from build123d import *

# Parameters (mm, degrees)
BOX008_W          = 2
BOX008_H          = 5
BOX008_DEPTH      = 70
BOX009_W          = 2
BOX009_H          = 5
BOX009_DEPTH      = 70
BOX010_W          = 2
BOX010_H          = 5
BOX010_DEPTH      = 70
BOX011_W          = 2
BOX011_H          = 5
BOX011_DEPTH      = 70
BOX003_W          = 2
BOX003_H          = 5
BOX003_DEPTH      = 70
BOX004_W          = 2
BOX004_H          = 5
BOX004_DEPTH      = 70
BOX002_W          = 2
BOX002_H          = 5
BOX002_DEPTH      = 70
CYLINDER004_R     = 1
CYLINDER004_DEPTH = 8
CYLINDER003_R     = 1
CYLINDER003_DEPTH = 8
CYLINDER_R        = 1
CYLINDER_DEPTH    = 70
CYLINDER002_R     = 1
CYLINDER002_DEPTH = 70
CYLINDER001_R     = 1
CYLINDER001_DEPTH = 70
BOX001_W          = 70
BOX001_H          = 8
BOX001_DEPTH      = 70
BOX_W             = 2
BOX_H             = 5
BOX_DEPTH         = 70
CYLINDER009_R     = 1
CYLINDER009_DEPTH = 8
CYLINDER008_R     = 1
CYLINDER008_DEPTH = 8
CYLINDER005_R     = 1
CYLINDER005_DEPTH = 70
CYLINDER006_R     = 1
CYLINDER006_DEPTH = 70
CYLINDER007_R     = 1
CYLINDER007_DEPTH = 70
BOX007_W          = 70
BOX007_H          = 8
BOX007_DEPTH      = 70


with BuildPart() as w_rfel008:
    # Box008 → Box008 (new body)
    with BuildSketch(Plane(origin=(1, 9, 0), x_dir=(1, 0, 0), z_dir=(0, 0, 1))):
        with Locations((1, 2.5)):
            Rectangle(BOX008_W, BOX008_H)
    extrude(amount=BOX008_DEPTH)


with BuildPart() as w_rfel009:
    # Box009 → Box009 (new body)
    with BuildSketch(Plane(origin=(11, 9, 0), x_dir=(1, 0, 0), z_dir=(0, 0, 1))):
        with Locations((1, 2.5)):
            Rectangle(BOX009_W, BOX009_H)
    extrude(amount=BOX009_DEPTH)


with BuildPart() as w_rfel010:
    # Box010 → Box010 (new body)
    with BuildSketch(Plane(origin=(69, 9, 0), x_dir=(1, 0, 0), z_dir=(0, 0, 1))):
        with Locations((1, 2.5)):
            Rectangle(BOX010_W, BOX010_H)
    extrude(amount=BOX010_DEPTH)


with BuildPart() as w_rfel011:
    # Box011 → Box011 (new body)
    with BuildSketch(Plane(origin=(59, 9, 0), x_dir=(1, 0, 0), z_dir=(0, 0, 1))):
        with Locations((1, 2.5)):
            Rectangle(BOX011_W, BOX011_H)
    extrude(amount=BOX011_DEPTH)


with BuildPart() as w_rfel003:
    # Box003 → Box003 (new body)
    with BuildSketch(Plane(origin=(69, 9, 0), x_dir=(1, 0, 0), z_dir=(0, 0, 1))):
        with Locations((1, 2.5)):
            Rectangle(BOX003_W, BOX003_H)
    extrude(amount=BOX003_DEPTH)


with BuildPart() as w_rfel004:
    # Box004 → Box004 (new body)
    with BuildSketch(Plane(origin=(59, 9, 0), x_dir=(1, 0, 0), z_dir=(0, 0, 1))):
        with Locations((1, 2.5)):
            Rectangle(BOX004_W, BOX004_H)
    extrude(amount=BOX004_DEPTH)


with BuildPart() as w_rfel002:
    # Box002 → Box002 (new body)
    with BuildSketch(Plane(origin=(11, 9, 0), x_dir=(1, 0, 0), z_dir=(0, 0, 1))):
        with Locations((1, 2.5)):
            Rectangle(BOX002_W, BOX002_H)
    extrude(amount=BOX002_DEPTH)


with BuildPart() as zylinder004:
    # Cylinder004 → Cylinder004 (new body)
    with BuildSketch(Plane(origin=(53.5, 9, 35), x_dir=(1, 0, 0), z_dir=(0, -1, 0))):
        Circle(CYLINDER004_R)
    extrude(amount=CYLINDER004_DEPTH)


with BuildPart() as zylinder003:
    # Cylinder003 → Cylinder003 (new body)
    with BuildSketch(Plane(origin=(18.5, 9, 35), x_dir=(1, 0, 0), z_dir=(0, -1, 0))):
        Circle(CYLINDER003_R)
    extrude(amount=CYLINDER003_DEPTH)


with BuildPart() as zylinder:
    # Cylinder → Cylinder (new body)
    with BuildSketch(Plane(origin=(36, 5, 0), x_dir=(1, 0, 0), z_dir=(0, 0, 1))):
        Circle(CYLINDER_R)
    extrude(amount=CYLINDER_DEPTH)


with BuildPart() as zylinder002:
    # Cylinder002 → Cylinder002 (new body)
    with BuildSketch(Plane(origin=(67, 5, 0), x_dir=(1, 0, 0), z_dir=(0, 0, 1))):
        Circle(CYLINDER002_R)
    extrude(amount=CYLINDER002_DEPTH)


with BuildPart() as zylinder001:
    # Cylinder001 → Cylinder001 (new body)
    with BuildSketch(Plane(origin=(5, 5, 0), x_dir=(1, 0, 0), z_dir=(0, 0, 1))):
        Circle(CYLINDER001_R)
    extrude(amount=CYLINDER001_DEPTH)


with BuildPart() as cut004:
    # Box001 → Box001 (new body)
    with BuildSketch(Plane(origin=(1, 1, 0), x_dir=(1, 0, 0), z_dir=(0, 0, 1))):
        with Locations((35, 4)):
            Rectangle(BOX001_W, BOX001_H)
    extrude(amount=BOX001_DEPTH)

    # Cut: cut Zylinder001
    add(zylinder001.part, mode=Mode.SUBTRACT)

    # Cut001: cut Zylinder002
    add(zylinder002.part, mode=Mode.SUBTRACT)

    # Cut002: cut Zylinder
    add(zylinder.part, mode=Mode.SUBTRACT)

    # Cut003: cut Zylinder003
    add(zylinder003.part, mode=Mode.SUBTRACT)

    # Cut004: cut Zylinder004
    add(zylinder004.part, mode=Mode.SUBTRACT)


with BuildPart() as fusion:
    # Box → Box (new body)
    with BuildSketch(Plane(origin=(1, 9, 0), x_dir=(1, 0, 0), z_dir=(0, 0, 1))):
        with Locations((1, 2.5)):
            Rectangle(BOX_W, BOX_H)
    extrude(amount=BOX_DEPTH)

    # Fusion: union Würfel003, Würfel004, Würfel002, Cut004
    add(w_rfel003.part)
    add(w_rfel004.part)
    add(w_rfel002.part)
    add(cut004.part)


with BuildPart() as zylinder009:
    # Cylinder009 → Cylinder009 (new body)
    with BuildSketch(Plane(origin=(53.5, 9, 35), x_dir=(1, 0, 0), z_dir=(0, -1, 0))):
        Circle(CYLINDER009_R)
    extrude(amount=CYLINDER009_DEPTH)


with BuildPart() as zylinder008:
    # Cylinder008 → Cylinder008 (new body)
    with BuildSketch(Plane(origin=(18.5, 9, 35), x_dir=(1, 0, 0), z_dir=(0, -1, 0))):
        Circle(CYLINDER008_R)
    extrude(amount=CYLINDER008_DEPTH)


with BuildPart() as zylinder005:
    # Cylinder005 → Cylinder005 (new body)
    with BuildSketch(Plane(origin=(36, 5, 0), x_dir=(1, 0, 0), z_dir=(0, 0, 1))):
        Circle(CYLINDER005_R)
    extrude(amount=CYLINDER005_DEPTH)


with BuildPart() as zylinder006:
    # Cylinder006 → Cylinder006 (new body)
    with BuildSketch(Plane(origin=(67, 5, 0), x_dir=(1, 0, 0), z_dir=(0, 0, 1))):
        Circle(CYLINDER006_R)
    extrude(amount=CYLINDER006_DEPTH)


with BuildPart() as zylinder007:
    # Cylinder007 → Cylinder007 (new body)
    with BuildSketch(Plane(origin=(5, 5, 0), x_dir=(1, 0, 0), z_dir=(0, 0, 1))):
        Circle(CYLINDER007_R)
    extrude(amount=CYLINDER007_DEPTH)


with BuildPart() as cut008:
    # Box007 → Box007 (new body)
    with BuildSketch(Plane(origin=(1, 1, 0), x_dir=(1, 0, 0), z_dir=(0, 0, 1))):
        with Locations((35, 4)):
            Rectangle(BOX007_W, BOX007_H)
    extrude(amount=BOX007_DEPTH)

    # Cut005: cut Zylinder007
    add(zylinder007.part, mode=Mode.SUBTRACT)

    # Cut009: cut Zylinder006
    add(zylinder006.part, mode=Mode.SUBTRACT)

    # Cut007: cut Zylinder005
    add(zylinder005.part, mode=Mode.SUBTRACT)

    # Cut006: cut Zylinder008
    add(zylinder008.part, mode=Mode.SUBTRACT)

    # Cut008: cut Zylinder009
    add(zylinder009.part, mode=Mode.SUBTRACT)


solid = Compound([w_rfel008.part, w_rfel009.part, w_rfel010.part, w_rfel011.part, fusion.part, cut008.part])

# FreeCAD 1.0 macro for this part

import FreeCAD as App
import Part
import Sketcher

V = App.Vector


def add_polygon(sketch, points):
    """Adds a closed chain of lines whose ends are joined by coincident constraints."""
    first, n = sketch.GeometryCount, len(points)
    for a, b in zip(points, points[1:] + points[:1]):
        sketch.addGeometry(Part.LineSegment(App.Vector(*a, 0), App.Vector(*b, 0)), False)
    for i in range(n):
        sketch.addConstraint(Sketcher.Constraint("Coincident", first + i, 2, first + (i + 1) % n, 1))

doc = App.newDocument("Part")
body = doc.addObject("PartDesign::Body", "Body")

sketch1 = doc.addObject("Sketcher::SketchObject", "Sketch")
body.addObject(sketch1)
sketch1.AttachmentSupport = (doc.XY_Plane, [""])
sketch1.MapMode = "FlatFace"
add_polygon(sketch1, [(1, 14), (1, 9), (3, 9), (3, 14)])
sketch1.addConstraint(Sketcher.Constraint("Vertical", 0))
sketch1.addConstraint(Sketcher.Constraint("Horizontal", 1))
sketch1.addConstraint(Sketcher.Constraint("Vertical", 2))
sketch1.addConstraint(Sketcher.Constraint("Horizontal", 3))
sketch1.addConstraint(Sketcher.Constraint("DistanceX", 1, 1, 1, 2, 2.0))
sketch1.addConstraint(Sketcher.Constraint("DistanceY", 0, 2, 0, 1, 5.0))
sketch1.addConstraint(Sketcher.Constraint("DistanceX", -1, 1, 0, 2, 1.0))
sketch1.addConstraint(Sketcher.Constraint("DistanceY", -1, 1, 0, 2, 9.0))
pad1 = doc.addObject("PartDesign::Pad", "Pad")
body.addObject(pad1)
pad1.Profile = sketch1
pad1.Length = 70
body2 = doc.addObject("PartDesign::Body", "Body001")

sketch2 = doc.addObject("Sketcher::SketchObject", "Sketch001")
body2.addObject(sketch2)
sketch2.AttachmentSupport = (doc.getObject("XY_Plane001"), [""])
sketch2.MapMode = "FlatFace"
add_polygon(sketch2, [(11, 14), (11, 9), (13, 9), (13, 14)])
sketch2.addConstraint(Sketcher.Constraint("Vertical", 0))
sketch2.addConstraint(Sketcher.Constraint("Horizontal", 1))
sketch2.addConstraint(Sketcher.Constraint("Vertical", 2))
sketch2.addConstraint(Sketcher.Constraint("Horizontal", 3))
sketch2.addConstraint(Sketcher.Constraint("DistanceX", 1, 1, 1, 2, 2.0))
sketch2.addConstraint(Sketcher.Constraint("DistanceY", 0, 2, 0, 1, 5.0))
sketch2.addConstraint(Sketcher.Constraint("DistanceX", -1, 1, 0, 2, 11.0))
sketch2.addConstraint(Sketcher.Constraint("DistanceY", -1, 1, 0, 2, 9.0))
pad2 = doc.addObject("PartDesign::Pad", "Pad001")
body2.addObject(pad2)
pad2.Profile = sketch2
pad2.Length = 70
body3 = doc.addObject("PartDesign::Body", "Body002")

sketch3 = doc.addObject("Sketcher::SketchObject", "Sketch002")
body3.addObject(sketch3)
sketch3.AttachmentSupport = (doc.getObject("XY_Plane002"), [""])
sketch3.MapMode = "FlatFace"
add_polygon(sketch3, [(69, 14), (69, 9), (71, 9), (71, 14)])
sketch3.addConstraint(Sketcher.Constraint("Vertical", 0))
sketch3.addConstraint(Sketcher.Constraint("Horizontal", 1))
sketch3.addConstraint(Sketcher.Constraint("Vertical", 2))
sketch3.addConstraint(Sketcher.Constraint("Horizontal", 3))
sketch3.addConstraint(Sketcher.Constraint("DistanceX", 1, 1, 1, 2, 2.0))
sketch3.addConstraint(Sketcher.Constraint("DistanceY", 0, 2, 0, 1, 5.0))
sketch3.addConstraint(Sketcher.Constraint("DistanceX", -1, 1, 0, 2, 69.0))
sketch3.addConstraint(Sketcher.Constraint("DistanceY", -1, 1, 0, 2, 9.0))
pad3 = doc.addObject("PartDesign::Pad", "Pad002")
body3.addObject(pad3)
pad3.Profile = sketch3
pad3.Length = 70
body4 = doc.addObject("PartDesign::Body", "Body003")

sketch4 = doc.addObject("Sketcher::SketchObject", "Sketch003")
body4.addObject(sketch4)
sketch4.AttachmentSupport = (doc.getObject("XY_Plane003"), [""])
sketch4.MapMode = "FlatFace"
add_polygon(sketch4, [(59, 14), (59, 9), (61, 9), (61, 14)])
sketch4.addConstraint(Sketcher.Constraint("Vertical", 0))
sketch4.addConstraint(Sketcher.Constraint("Horizontal", 1))
sketch4.addConstraint(Sketcher.Constraint("Vertical", 2))
sketch4.addConstraint(Sketcher.Constraint("Horizontal", 3))
sketch4.addConstraint(Sketcher.Constraint("DistanceX", 1, 1, 1, 2, 2.0))
sketch4.addConstraint(Sketcher.Constraint("DistanceY", 0, 2, 0, 1, 5.0))
sketch4.addConstraint(Sketcher.Constraint("DistanceX", -1, 1, 0, 2, 59.0))
sketch4.addConstraint(Sketcher.Constraint("DistanceY", -1, 1, 0, 2, 9.0))
pad4 = doc.addObject("PartDesign::Pad", "Pad003")
body4.addObject(pad4)
pad4.Profile = sketch4
pad4.Length = 70
body5 = doc.addObject("PartDesign::Body", "Body004")

sketch5 = doc.addObject("Sketcher::SketchObject", "Sketch004")
body5.addObject(sketch5)
sketch5.AttachmentSupport = (doc.getObject("XY_Plane004"), [""])
sketch5.MapMode = "FlatFace"
add_polygon(sketch5, [(69, 14), (69, 9), (71, 9), (71, 14)])
sketch5.addConstraint(Sketcher.Constraint("Vertical", 0))
sketch5.addConstraint(Sketcher.Constraint("Horizontal", 1))
sketch5.addConstraint(Sketcher.Constraint("Vertical", 2))
sketch5.addConstraint(Sketcher.Constraint("Horizontal", 3))
sketch5.addConstraint(Sketcher.Constraint("DistanceX", 1, 1, 1, 2, 2.0))
sketch5.addConstraint(Sketcher.Constraint("DistanceY", 0, 2, 0, 1, 5.0))
sketch5.addConstraint(Sketcher.Constraint("DistanceX", -1, 1, 0, 2, 69.0))
sketch5.addConstraint(Sketcher.Constraint("DistanceY", -1, 1, 0, 2, 9.0))
pad5 = doc.addObject("PartDesign::Pad", "Pad004")
body5.addObject(pad5)
pad5.Profile = sketch5
pad5.Length = 70
body6 = doc.addObject("PartDesign::Body", "Body005")

sketch6 = doc.addObject("Sketcher::SketchObject", "Sketch005")
body6.addObject(sketch6)
sketch6.AttachmentSupport = (doc.getObject("XY_Plane005"), [""])
sketch6.MapMode = "FlatFace"
add_polygon(sketch6, [(59, 14), (59, 9), (61, 9), (61, 14)])
sketch6.addConstraint(Sketcher.Constraint("Vertical", 0))
sketch6.addConstraint(Sketcher.Constraint("Horizontal", 1))
sketch6.addConstraint(Sketcher.Constraint("Vertical", 2))
sketch6.addConstraint(Sketcher.Constraint("Horizontal", 3))
sketch6.addConstraint(Sketcher.Constraint("DistanceX", 1, 1, 1, 2, 2.0))
sketch6.addConstraint(Sketcher.Constraint("DistanceY", 0, 2, 0, 1, 5.0))
sketch6.addConstraint(Sketcher.Constraint("DistanceX", -1, 1, 0, 2, 59.0))
sketch6.addConstraint(Sketcher.Constraint("DistanceY", -1, 1, 0, 2, 9.0))
pad6 = doc.addObject("PartDesign::Pad", "Pad005")
body6.addObject(pad6)
pad6.Profile = sketch6
pad6.Length = 70
body7 = doc.addObject("PartDesign::Body", "Body006")

sketch7 = doc.addObject("Sketcher::SketchObject", "Sketch006")
body7.addObject(sketch7)
sketch7.AttachmentSupport = (doc.getObject("XY_Plane006"), [""])
sketch7.MapMode = "FlatFace"
add_polygon(sketch7, [(11, 14), (11, 9), (13, 9), (13, 14)])
sketch7.addConstraint(Sketcher.Constraint("Vertical", 0))
sketch7.addConstraint(Sketcher.Constraint("Horizontal", 1))
sketch7.addConstraint(Sketcher.Constraint("Vertical", 2))
sketch7.addConstraint(Sketcher.Constraint("Horizontal", 3))
sketch7.addConstraint(Sketcher.Constraint("DistanceX", 1, 1, 1, 2, 2.0))
sketch7.addConstraint(Sketcher.Constraint("DistanceY", 0, 2, 0, 1, 5.0))
sketch7.addConstraint(Sketcher.Constraint("DistanceX", -1, 1, 0, 2, 11.0))
sketch7.addConstraint(Sketcher.Constraint("DistanceY", -1, 1, 0, 2, 9.0))
pad7 = doc.addObject("PartDesign::Pad", "Pad006")
body7.addObject(pad7)
pad7.Profile = sketch7
pad7.Length = 70
body8 = doc.addObject("PartDesign::Body", "Body007")

sketch8 = doc.addObject("Sketcher::SketchObject", "Sketch007")
body8.addObject(sketch8)
sketch8.AttachmentSupport = (doc.getObject("XZ_Plane007"), [""])
sketch8.MapMode = "FlatFace"
sketch8.AttachmentOffset = App.Placement(V(0, 0, -9), App.Rotation())
sketch8.addGeometry(Part.Circle(V(53.5, 35, 0), V(0, 0, 1), 1), False)
sketch8.addConstraint(Sketcher.Constraint("Diameter", 0, 2.0))
sketch8.addConstraint(Sketcher.Constraint("DistanceY", -1, 1, 0, 3, 35.0))
sketch8.addConstraint(Sketcher.Constraint("DistanceX", -1, 1, 0, 3, 53.5))
pad8 = doc.addObject("PartDesign::Pad", "Pad007")
body8.addObject(pad8)
pad8.Profile = sketch8
pad8.Length = 8
body9 = doc.addObject("PartDesign::Body", "Body008")

sketch9 = doc.addObject("Sketcher::SketchObject", "Sketch008")
body9.addObject(sketch9)
sketch9.AttachmentSupport = (doc.getObject("XZ_Plane008"), [""])
sketch9.MapMode = "FlatFace"
sketch9.AttachmentOffset = App.Placement(V(0, 0, -9), App.Rotation())
sketch9.addGeometry(Part.Circle(V(18.5, 35, 0), V(0, 0, 1), 1), False)
sketch9.addConstraint(Sketcher.Constraint("Diameter", 0, 2.0))
sketch9.addConstraint(Sketcher.Constraint("DistanceY", -1, 1, 0, 3, 35.0))
sketch9.addConstraint(Sketcher.Constraint("DistanceX", -1, 1, 0, 3, 18.5))
pad9 = doc.addObject("PartDesign::Pad", "Pad008")
body9.addObject(pad9)
pad9.Profile = sketch9
pad9.Length = 8
body10 = doc.addObject("PartDesign::Body", "Body009")

sketch10 = doc.addObject("Sketcher::SketchObject", "Sketch009")
body10.addObject(sketch10)
sketch10.AttachmentSupport = (doc.getObject("XY_Plane009"), [""])
sketch10.MapMode = "FlatFace"
sketch10.addGeometry(Part.Circle(V(36, 5, 0), V(0, 0, 1), 1), False)
sketch10.addConstraint(Sketcher.Constraint("Diameter", 0, 2.0))
sketch10.addConstraint(Sketcher.Constraint("DistanceX", -1, 1, 0, 3, 36.0))
sketch10.addConstraint(Sketcher.Constraint("DistanceY", -1, 1, 0, 3, 5.0))
pad10 = doc.addObject("PartDesign::Pad", "Pad009")
body10.addObject(pad10)
pad10.Profile = sketch10
pad10.Length = 70
body11 = doc.addObject("PartDesign::Body", "Body010")

sketch11 = doc.addObject("Sketcher::SketchObject", "Sketch010")
body11.addObject(sketch11)
sketch11.AttachmentSupport = (doc.getObject("XY_Plane010"), [""])
sketch11.MapMode = "FlatFace"
sketch11.addGeometry(Part.Circle(V(67, 5, 0), V(0, 0, 1), 1), False)
sketch11.addConstraint(Sketcher.Constraint("Diameter", 0, 2.0))
sketch11.addConstraint(Sketcher.Constraint("DistanceX", -1, 1, 0, 3, 67.0))
sketch11.addConstraint(Sketcher.Constraint("DistanceY", -1, 1, 0, 3, 5.0))
pad11 = doc.addObject("PartDesign::Pad", "Pad010")
body11.addObject(pad11)
pad11.Profile = sketch11
pad11.Length = 70
body12 = doc.addObject("PartDesign::Body", "Body011")

sketch12 = doc.addObject("Sketcher::SketchObject", "Sketch011")
body12.addObject(sketch12)
sketch12.AttachmentSupport = (doc.getObject("XY_Plane011"), [""])
sketch12.MapMode = "FlatFace"
sketch12.addGeometry(Part.Circle(V(5, 5, 0), V(0, 0, 1), 1), False)
sketch12.addConstraint(Sketcher.Constraint("Diameter", 0, 2.0))
sketch12.addConstraint(Sketcher.Constraint("DistanceX", -1, 1, 0, 3, 5.0))
sketch12.addConstraint(Sketcher.Constraint("DistanceY", -1, 1, 0, 3, 5.0))
pad12 = doc.addObject("PartDesign::Pad", "Pad011")
body12.addObject(pad12)
pad12.Profile = sketch12
pad12.Length = 70
body13 = doc.addObject("PartDesign::Body", "Body012")

sketch13 = doc.addObject("Sketcher::SketchObject", "Sketch012")
body13.addObject(sketch13)
sketch13.AttachmentSupport = (doc.getObject("XY_Plane012"), [""])
sketch13.MapMode = "FlatFace"
add_polygon(sketch13, [(1, 9), (1, 1), (71, 1), (71, 9)])
sketch13.addConstraint(Sketcher.Constraint("Vertical", 0))
sketch13.addConstraint(Sketcher.Constraint("Horizontal", 1))
sketch13.addConstraint(Sketcher.Constraint("Vertical", 2))
sketch13.addConstraint(Sketcher.Constraint("Horizontal", 3))
sketch13.addConstraint(Sketcher.Constraint("DistanceX", 1, 1, 1, 2, 70.0))
sketch13.addConstraint(Sketcher.Constraint("DistanceY", 0, 2, 0, 1, 8.0))
sketch13.addConstraint(Sketcher.Constraint("DistanceX", -1, 1, 0, 2, 1.0))
sketch13.addConstraint(Sketcher.Constraint("DistanceY", -1, 1, 0, 2, 1.0))
pad13 = doc.addObject("PartDesign::Pad", "Pad012")
body13.addObject(pad13)
pad13.Profile = sketch13
pad13.Length = 70
doc.recompute()

boolean = doc.addObject("PartDesign::Boolean", "Boolean")
body13.addObject(boolean)
boolean.Type = "Cut"
boolean.addObjects([body12])
doc.recompute()

boolean2 = doc.addObject("PartDesign::Boolean", "Boolean001")
body13.addObject(boolean2)
boolean2.Type = "Cut"
boolean2.addObjects([body11])
doc.recompute()

boolean3 = doc.addObject("PartDesign::Boolean", "Boolean002")
body13.addObject(boolean3)
boolean3.Type = "Cut"
boolean3.addObjects([body10])
doc.recompute()

boolean4 = doc.addObject("PartDesign::Boolean", "Boolean003")
body13.addObject(boolean4)
boolean4.Type = "Cut"
boolean4.addObjects([body9])
doc.recompute()

boolean5 = doc.addObject("PartDesign::Boolean", "Boolean004")
body13.addObject(boolean5)
boolean5.Type = "Cut"
boolean5.addObjects([body8])
body14 = doc.addObject("PartDesign::Body", "Body013")
body14.AllowCompound = True

sketch14 = doc.addObject("Sketcher::SketchObject", "Sketch013")
body14.addObject(sketch14)
sketch14.AttachmentSupport = (doc.getObject("XY_Plane013"), [""])
sketch14.MapMode = "FlatFace"
add_polygon(sketch14, [(1, 14), (1, 9), (3, 9), (3, 14)])
sketch14.addConstraint(Sketcher.Constraint("Vertical", 0))
sketch14.addConstraint(Sketcher.Constraint("Horizontal", 1))
sketch14.addConstraint(Sketcher.Constraint("Vertical", 2))
sketch14.addConstraint(Sketcher.Constraint("Horizontal", 3))
sketch14.addConstraint(Sketcher.Constraint("DistanceX", 1, 1, 1, 2, 2.0))
sketch14.addConstraint(Sketcher.Constraint("DistanceY", 0, 2, 0, 1, 5.0))
sketch14.addConstraint(Sketcher.Constraint("DistanceX", -1, 1, 0, 2, 1.0))
sketch14.addConstraint(Sketcher.Constraint("DistanceY", -1, 1, 0, 2, 9.0))
pad14 = doc.addObject("PartDesign::Pad", "Pad013")
body14.addObject(pad14)
pad14.Profile = sketch14
pad14.Length = 70
doc.recompute()

boolean6 = doc.addObject("PartDesign::Boolean", "Boolean005")
body14.addObject(boolean6)
boolean6.Type = "Fuse"
boolean6.addObjects([body5])
doc.recompute()

boolean7 = doc.addObject("PartDesign::Boolean", "Boolean006")
body14.addObject(boolean7)
boolean7.Type = "Fuse"
boolean7.addObjects([body6])
doc.recompute()

boolean8 = doc.addObject("PartDesign::Boolean", "Boolean007")
body14.addObject(boolean8)
boolean8.Type = "Fuse"
boolean8.addObjects([body7])
doc.recompute()

boolean9 = doc.addObject("PartDesign::Boolean", "Boolean008")
body14.addObject(boolean9)
boolean9.Type = "Fuse"
boolean9.addObjects([body13])
body15 = doc.addObject("PartDesign::Body", "Body014")

sketch15 = doc.addObject("Sketcher::SketchObject", "Sketch014")
body15.addObject(sketch15)
sketch15.AttachmentSupport = (doc.getObject("XZ_Plane014"), [""])
sketch15.MapMode = "FlatFace"
sketch15.AttachmentOffset = App.Placement(V(0, 0, -9), App.Rotation())
sketch15.addGeometry(Part.Circle(V(53.5, 35, 0), V(0, 0, 1), 1), False)
sketch15.addConstraint(Sketcher.Constraint("Diameter", 0, 2.0))
sketch15.addConstraint(Sketcher.Constraint("DistanceY", -1, 1, 0, 3, 35.0))
sketch15.addConstraint(Sketcher.Constraint("DistanceX", -1, 1, 0, 3, 53.5))
pad15 = doc.addObject("PartDesign::Pad", "Pad014")
body15.addObject(pad15)
pad15.Profile = sketch15
pad15.Length = 8
body16 = doc.addObject("PartDesign::Body", "Body015")

sketch16 = doc.addObject("Sketcher::SketchObject", "Sketch015")
body16.addObject(sketch16)
sketch16.AttachmentSupport = (doc.getObject("XZ_Plane015"), [""])
sketch16.MapMode = "FlatFace"
sketch16.AttachmentOffset = App.Placement(V(0, 0, -9), App.Rotation())
sketch16.addGeometry(Part.Circle(V(18.5, 35, 0), V(0, 0, 1), 1), False)
sketch16.addConstraint(Sketcher.Constraint("Diameter", 0, 2.0))
sketch16.addConstraint(Sketcher.Constraint("DistanceY", -1, 1, 0, 3, 35.0))
sketch16.addConstraint(Sketcher.Constraint("DistanceX", -1, 1, 0, 3, 18.5))
pad16 = doc.addObject("PartDesign::Pad", "Pad015")
body16.addObject(pad16)
pad16.Profile = sketch16
pad16.Length = 8
body17 = doc.addObject("PartDesign::Body", "Body016")

sketch17 = doc.addObject("Sketcher::SketchObject", "Sketch016")
body17.addObject(sketch17)
sketch17.AttachmentSupport = (doc.getObject("XY_Plane016"), [""])
sketch17.MapMode = "FlatFace"
sketch17.addGeometry(Part.Circle(V(36, 5, 0), V(0, 0, 1), 1), False)
sketch17.addConstraint(Sketcher.Constraint("Diameter", 0, 2.0))
sketch17.addConstraint(Sketcher.Constraint("DistanceX", -1, 1, 0, 3, 36.0))
sketch17.addConstraint(Sketcher.Constraint("DistanceY", -1, 1, 0, 3, 5.0))
pad17 = doc.addObject("PartDesign::Pad", "Pad016")
body17.addObject(pad17)
pad17.Profile = sketch17
pad17.Length = 70
body18 = doc.addObject("PartDesign::Body", "Body017")

sketch18 = doc.addObject("Sketcher::SketchObject", "Sketch017")
body18.addObject(sketch18)
sketch18.AttachmentSupport = (doc.getObject("XY_Plane017"), [""])
sketch18.MapMode = "FlatFace"
sketch18.addGeometry(Part.Circle(V(67, 5, 0), V(0, 0, 1), 1), False)
sketch18.addConstraint(Sketcher.Constraint("Diameter", 0, 2.0))
sketch18.addConstraint(Sketcher.Constraint("DistanceX", -1, 1, 0, 3, 67.0))
sketch18.addConstraint(Sketcher.Constraint("DistanceY", -1, 1, 0, 3, 5.0))
pad18 = doc.addObject("PartDesign::Pad", "Pad017")
body18.addObject(pad18)
pad18.Profile = sketch18
pad18.Length = 70
body19 = doc.addObject("PartDesign::Body", "Body018")

sketch19 = doc.addObject("Sketcher::SketchObject", "Sketch018")
body19.addObject(sketch19)
sketch19.AttachmentSupport = (doc.getObject("XY_Plane018"), [""])
sketch19.MapMode = "FlatFace"
sketch19.addGeometry(Part.Circle(V(5, 5, 0), V(0, 0, 1), 1), False)
sketch19.addConstraint(Sketcher.Constraint("Diameter", 0, 2.0))
sketch19.addConstraint(Sketcher.Constraint("DistanceX", -1, 1, 0, 3, 5.0))
sketch19.addConstraint(Sketcher.Constraint("DistanceY", -1, 1, 0, 3, 5.0))
pad19 = doc.addObject("PartDesign::Pad", "Pad018")
body19.addObject(pad19)
pad19.Profile = sketch19
pad19.Length = 70
body20 = doc.addObject("PartDesign::Body", "Body019")

sketch20 = doc.addObject("Sketcher::SketchObject", "Sketch019")
body20.addObject(sketch20)
sketch20.AttachmentSupport = (doc.getObject("XY_Plane019"), [""])
sketch20.MapMode = "FlatFace"
add_polygon(sketch20, [(1, 9), (1, 1), (71, 1), (71, 9)])
sketch20.addConstraint(Sketcher.Constraint("Vertical", 0))
sketch20.addConstraint(Sketcher.Constraint("Horizontal", 1))
sketch20.addConstraint(Sketcher.Constraint("Vertical", 2))
sketch20.addConstraint(Sketcher.Constraint("Horizontal", 3))
sketch20.addConstraint(Sketcher.Constraint("DistanceX", 1, 1, 1, 2, 70.0))
sketch20.addConstraint(Sketcher.Constraint("DistanceY", 0, 2, 0, 1, 8.0))
sketch20.addConstraint(Sketcher.Constraint("DistanceX", -1, 1, 0, 2, 1.0))
sketch20.addConstraint(Sketcher.Constraint("DistanceY", -1, 1, 0, 2, 1.0))
pad20 = doc.addObject("PartDesign::Pad", "Pad019")
body20.addObject(pad20)
pad20.Profile = sketch20
pad20.Length = 70
doc.recompute()

boolean10 = doc.addObject("PartDesign::Boolean", "Boolean009")
body20.addObject(boolean10)
boolean10.Type = "Cut"
boolean10.addObjects([body19])
doc.recompute()

boolean11 = doc.addObject("PartDesign::Boolean", "Boolean010")
body20.addObject(boolean11)
boolean11.Type = "Cut"
boolean11.addObjects([body18])
doc.recompute()

boolean12 = doc.addObject("PartDesign::Boolean", "Boolean011")
body20.addObject(boolean12)
boolean12.Type = "Cut"
boolean12.addObjects([body17])
doc.recompute()

boolean13 = doc.addObject("PartDesign::Boolean", "Boolean012")
body20.addObject(boolean13)
boolean13.Type = "Cut"
boolean13.addObjects([body16])
doc.recompute()

boolean14 = doc.addObject("PartDesign::Boolean", "Boolean013")
body20.addObject(boolean14)
boolean14.Type = "Cut"
boolean14.addObjects([body15])

doc.recompute()
